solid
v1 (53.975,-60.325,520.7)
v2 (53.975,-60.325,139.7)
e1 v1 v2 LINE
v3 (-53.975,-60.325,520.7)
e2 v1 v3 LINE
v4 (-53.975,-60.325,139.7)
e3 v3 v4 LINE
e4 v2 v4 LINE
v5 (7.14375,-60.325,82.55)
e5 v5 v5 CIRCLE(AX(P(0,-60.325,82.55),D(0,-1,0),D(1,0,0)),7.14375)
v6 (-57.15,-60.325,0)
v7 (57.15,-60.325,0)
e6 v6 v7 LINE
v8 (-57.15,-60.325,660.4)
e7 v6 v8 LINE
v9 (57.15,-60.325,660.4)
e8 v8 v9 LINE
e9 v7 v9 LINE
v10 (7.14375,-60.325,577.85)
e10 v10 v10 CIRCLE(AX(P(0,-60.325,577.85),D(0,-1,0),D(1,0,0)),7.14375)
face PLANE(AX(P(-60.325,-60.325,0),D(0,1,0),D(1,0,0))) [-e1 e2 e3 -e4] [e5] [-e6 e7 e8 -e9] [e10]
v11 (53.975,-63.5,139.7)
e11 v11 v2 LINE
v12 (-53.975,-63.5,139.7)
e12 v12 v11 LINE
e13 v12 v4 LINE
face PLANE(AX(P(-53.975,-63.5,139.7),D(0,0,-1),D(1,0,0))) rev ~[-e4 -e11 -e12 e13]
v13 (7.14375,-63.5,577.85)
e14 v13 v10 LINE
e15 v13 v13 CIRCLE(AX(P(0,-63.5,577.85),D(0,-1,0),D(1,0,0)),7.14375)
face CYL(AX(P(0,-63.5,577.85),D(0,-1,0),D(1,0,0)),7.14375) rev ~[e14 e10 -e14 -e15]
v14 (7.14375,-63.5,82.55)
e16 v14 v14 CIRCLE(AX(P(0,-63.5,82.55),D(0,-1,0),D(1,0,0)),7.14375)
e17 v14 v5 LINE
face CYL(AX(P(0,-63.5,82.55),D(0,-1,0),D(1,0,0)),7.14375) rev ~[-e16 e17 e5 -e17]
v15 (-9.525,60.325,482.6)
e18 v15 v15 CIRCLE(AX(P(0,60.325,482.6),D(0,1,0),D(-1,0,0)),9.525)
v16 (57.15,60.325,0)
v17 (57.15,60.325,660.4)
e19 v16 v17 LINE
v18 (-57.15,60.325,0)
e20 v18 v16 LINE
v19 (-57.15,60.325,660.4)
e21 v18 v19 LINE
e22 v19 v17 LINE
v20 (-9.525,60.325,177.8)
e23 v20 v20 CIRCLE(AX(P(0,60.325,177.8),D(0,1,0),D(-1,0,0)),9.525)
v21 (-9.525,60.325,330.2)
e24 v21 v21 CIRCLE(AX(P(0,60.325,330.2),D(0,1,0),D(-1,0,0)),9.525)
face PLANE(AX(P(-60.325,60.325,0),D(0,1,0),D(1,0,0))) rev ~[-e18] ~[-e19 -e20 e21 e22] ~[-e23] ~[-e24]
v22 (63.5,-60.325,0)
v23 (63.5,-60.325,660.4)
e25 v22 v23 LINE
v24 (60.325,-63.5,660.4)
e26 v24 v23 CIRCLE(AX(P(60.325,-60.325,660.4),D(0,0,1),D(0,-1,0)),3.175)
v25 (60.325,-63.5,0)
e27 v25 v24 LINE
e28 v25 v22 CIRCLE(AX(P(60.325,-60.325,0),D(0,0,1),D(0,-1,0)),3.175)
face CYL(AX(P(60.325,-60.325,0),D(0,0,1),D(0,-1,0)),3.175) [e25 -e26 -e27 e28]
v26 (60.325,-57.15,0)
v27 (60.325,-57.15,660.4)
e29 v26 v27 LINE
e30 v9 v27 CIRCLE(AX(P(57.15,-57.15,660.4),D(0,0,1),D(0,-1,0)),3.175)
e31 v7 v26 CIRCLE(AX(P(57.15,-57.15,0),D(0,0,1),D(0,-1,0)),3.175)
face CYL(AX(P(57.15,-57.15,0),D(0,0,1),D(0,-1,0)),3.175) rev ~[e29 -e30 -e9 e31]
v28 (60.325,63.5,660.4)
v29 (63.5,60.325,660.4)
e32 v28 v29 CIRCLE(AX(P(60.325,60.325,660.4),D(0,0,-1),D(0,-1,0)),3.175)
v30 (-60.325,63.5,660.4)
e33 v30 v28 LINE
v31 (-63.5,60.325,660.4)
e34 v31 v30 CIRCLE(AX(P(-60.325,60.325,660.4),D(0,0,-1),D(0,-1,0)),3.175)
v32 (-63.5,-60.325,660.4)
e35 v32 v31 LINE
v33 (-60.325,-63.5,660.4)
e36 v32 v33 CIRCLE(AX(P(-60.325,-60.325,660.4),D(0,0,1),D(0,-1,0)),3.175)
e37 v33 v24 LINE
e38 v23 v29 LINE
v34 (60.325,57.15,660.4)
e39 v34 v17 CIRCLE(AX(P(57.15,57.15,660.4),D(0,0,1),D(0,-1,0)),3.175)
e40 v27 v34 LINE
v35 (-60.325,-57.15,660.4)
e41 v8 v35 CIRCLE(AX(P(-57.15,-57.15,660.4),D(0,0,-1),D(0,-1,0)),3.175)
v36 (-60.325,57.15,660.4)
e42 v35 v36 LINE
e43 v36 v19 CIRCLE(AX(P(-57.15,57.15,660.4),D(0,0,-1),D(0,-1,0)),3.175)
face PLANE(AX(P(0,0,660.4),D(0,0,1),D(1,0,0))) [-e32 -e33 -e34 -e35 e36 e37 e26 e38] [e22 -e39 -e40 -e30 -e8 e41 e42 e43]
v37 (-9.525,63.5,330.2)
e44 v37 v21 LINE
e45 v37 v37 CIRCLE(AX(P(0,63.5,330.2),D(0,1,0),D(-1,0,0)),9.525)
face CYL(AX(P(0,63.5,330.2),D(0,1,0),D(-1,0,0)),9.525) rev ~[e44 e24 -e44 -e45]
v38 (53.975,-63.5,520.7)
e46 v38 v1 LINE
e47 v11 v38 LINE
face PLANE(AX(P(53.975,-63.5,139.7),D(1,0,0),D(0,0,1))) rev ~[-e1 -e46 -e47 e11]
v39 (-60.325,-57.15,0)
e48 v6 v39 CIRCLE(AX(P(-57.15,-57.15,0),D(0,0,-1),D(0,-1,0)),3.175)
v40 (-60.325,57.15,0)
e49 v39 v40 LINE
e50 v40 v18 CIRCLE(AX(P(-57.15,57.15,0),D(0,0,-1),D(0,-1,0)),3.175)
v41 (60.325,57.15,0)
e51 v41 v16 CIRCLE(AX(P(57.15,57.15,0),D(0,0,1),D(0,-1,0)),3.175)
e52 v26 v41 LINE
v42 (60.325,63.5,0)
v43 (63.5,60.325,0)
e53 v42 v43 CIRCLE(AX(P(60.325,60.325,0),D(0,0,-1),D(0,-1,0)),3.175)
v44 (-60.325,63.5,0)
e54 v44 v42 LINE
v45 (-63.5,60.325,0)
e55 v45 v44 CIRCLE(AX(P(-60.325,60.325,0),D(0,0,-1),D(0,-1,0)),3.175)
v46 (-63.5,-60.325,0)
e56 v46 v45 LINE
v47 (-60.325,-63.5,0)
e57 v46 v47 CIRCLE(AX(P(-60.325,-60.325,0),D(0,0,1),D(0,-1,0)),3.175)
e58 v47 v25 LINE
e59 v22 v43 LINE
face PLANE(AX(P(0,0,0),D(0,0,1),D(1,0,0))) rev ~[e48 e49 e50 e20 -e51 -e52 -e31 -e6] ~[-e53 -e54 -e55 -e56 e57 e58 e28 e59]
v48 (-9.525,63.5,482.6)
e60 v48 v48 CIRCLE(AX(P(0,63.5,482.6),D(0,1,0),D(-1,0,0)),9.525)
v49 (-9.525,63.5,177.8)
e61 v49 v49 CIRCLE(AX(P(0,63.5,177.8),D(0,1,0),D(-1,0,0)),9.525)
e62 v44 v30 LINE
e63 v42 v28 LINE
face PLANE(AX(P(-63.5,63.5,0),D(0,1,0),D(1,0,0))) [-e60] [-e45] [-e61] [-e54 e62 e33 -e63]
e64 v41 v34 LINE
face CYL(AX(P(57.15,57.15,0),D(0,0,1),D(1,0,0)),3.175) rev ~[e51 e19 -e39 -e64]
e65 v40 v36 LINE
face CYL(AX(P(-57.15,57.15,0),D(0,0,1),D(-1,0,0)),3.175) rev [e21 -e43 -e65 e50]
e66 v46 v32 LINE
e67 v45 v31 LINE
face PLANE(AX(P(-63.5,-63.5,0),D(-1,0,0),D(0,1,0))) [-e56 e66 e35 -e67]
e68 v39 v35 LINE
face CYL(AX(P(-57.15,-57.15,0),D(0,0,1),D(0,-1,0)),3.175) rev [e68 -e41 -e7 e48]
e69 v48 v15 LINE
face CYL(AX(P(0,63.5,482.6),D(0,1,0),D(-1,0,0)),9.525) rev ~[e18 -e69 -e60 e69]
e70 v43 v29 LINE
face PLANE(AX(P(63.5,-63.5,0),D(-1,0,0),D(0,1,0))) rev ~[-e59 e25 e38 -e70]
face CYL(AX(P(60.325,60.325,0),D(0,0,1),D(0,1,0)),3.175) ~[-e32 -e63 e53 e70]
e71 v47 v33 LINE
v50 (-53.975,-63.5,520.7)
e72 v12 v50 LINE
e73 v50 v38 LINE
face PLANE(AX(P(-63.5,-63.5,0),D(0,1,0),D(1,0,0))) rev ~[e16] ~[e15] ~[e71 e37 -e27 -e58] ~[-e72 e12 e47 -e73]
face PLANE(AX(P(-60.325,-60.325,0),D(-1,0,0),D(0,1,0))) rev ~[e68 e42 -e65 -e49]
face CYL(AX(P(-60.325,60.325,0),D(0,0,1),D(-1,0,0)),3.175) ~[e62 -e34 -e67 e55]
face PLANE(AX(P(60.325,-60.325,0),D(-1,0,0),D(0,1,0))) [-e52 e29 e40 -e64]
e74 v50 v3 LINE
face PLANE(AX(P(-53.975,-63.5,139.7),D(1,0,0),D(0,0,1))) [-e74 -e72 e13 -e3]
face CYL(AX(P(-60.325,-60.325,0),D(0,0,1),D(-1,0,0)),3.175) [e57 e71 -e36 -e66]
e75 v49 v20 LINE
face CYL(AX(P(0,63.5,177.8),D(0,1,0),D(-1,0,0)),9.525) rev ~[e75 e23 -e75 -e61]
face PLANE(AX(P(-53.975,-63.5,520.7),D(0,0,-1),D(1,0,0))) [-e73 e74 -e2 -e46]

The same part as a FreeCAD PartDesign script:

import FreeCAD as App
import Part
import Sketcher

V = App.Vector
Q = App.Units.Quantity


def edges_at(feature, points):
    """Names of the edges that pass closest to the given points."""
    edges = feature.Shape.Edges
    near = lambda p: min(range(len(edges)), key=lambda i: edges[i].distToShape(Part.Vertex(*p))[0])
    return sorted({f"Edge{near(p) + 1}" for p in points})


def add_polygon(sketch, points):
    """Adds a closed chain of lines whose ends are joined by coincident constraints."""
    first, n = sketch.GeometryCount, len(points)
    for a, b in zip(points, points[1:] + points[:1]):
        sketch.addGeometry(Part.LineSegment(App.Vector(*a, 0), App.Vector(*b, 0)), False)
    for i in range(n):
        sketch.addConstraint(Sketcher.Constraint("Coincident", first + i, 2, first + (i + 1) % n, 1))

doc = App.newDocument("Part")
params = doc.addObject("Spreadsheet::Sheet", "Params")
for row, (alias, value) in enumerate([
    ("sketch1_width", "5 in"),
    ("sketch1_width2", "4.75 in"),
    ("pad1_length", "26 in"),
    ("fillet_radius", "0.125 in"),
    ("fillet2_radius", "0.125 in"),
    ("sketch2_height", "15 in"),
    ("sketch2_width", "4.25 in"),
    ("pocket1_length", "1 in"),
    ("sketch3_diameter", "0.5625 in"),
    ("pocket2_length", "1 in"),
    ("sketch4_diameter", "0.75 in"),
    ("pocket3_length", "1 in"),
], start=1):
    params.set(f"A{row}", alias)
    params.set(f"B{row}", "=" + value)
    params.setAlias(f"B{row}", alias)

body = doc.addObject("PartDesign::Body", "Body")

# Sketch on XY plane
sketch1 = body.newObject("Sketcher::SketchObject", "Sketch")
sketch1.AttachmentSupport = (doc.getObject("XY_Plane"), [""])
sketch1.MapMode = "FlatFace"
add_polygon(sketch1, [(-64, 64), (-64, -64), (64, -64), (64, 64)])  # lines 0-3
add_polygon(sketch1, [(60, -60), (-60, -60), (-60, 60), (60, 60)])  # lines 4-7
sketch1.addConstraint([
    Sketcher.Constraint("Vertical", 0),
    Sketcher.Constraint("Horizontal", 1),
    Sketcher.Constraint("Vertical", 2),
    Sketcher.Constraint("Horizontal", 3),
    Sketcher.Constraint("Horizontal", 4),
    Sketcher.Constraint("Vertical", 5),
    Sketcher.Constraint("Horizontal", 6),
    Sketcher.Constraint("Vertical", 7),
    Sketcher.Constraint("Symmetric", 0, 2, 2, 2, -1, 1),
    Sketcher.Constraint("Symmetric", 4, 2, 6, 2, -1, 1),
    Sketcher.Constraint("Equal", 3, 0),
    Sketcher.Constraint("Equal", 6, 5),
    Sketcher.Constraint("DistanceX", 1, 1, 1, 2, Q("5 in")),
    Sketcher.Constraint("DistanceX", 4, 2, 4, 1, Q("4.75 in")),
])
sketch1.setExpression("Constraints[20]", "Params.sketch1_width")
sketch1.setExpression("Constraints[21]", "Params.sketch1_width2")
pad1 = body.newObject("PartDesign::Pad", "Pad")
pad1.Profile = sketch1
pad1.setExpression("Length", "Params.pad1_length")
doc.recompute()

fillet = body.newObject("PartDesign::Fillet", "Fillet")
fillet.Base = (pad1, edges_at(pad1, [
    (60.325, 60.325, 330.2),
    (63.5, -63.5, 330.2),
    (-63.5, -63.5, 330.2),
    (-63.5, 63.5, 330.2),
    (60.325, -60.325, 330.2),
    (63.5, 63.5, 330.2),
    (-60.325, -60.325, 330.2),
]))
fillet.setExpression("Radius", "Params.fillet_radius")
doc.recompute()

fillet2 = body.newObject("PartDesign::Fillet", "Fillet001")
fillet2.Base = (fillet, edges_at(fillet, [(-60.325, 60.325, 330.2)]))
fillet2.setExpression("Radius", "Params.fillet2_radius")

# Sketch on XZ plane
sketch2 = body.newObject("Sketcher::SketchObject", "Sketch001")
sketch2.AttachmentSupport = (doc.getObject("XZ_Plane"), [""])
sketch2.MapMode = "FlatFace"
sketch2.AttachmentOffset = App.Placement(V(0, 0, 2.5 * 25.4), App.Rotation())
add_polygon(sketch2, [(-54, 521), (-54, 140), (54, 140), (54, 521)])  # lines 0-3
sketch2.addConstraint([
    Sketcher.Constraint("Vertical", 0),
    Sketcher.Constraint("Horizontal", 1),
    Sketcher.Constraint("Vertical", 2),
    Sketcher.Constraint("Horizontal", 3),
    Sketcher.Constraint("DistanceY", 0, 2, 0, 1, Q("15 in")),
    Sketcher.Constraint("DistanceX", 1, 1, 1, 2, Q("4.25 in")),
    Sketcher.Constraint("DistanceY", -1, 1, 0, 2, Q("5.5 in")),
    Sketcher.Constraint("DistanceX", 0, 2, -1, 1, Q("2.125 in")),
])
sketch2.setExpression("Constraints[8]", "Params.sketch2_height")
sketch2.setExpression("Constraints[9]", "Params.sketch2_width")
pocket1 = body.newObject("PartDesign::Pocket", "Pocket")
pocket1.Profile = sketch2
pocket1.setExpression("Length", "Params.pocket1_length")

# Sketch on XZ plane
sketch3 = body.newObject("Sketcher::SketchObject", "Sketch002")
sketch3.AttachmentSupport = (doc.getObject("XZ_Plane"), [""])
sketch3.MapMode = "FlatFace"
sketch3.AttachmentOffset = App.Placement(V(0, 0, 2.5 * 25.4), App.Rotation())
sketch3.addGeometry([
    Part.Circle(V(0, 83, 0), V(0, 0, 1), 7),
    Part.Circle(V(0, 578, 0), V(0, 0, 1), 7),
], False)
sketch3.addConstraint([
    Sketcher.Constraint("Equal", 0, 1),
    Sketcher.Constraint("PointOnObject", 0, 3, -2),
    Sketcher.Constraint("PointOnObject", 1, 3, -2),
    Sketcher.Constraint("Diameter", 0, Q("0.5625 in")),
    Sketcher.Constraint("DistanceY", 0, 3, 1, 3, Q("19.5 in")),
    Sketcher.Constraint("DistanceY", -1, 1, 0, 3, Q("3.25 in")),
])
sketch3.setExpression("Constraints[3]", "Params.sketch3_diameter")
pocket2 = body.newObject("PartDesign::Pocket", "Pocket001")
pocket2.Profile = sketch3
pocket2.setExpression("Length", "Params.pocket2_length")

# Sketch on XZ plane
sketch4 = body.newObject("Sketcher::SketchObject", "Sketch003")
sketch4.AttachmentSupport = (doc.getObject("XZ_Plane"), [""])
sketch4.MapMode = "FlatFace"
sketch4.AttachmentOffset = App.Placement(V(0, 0, -2.5 * 25.4), App.Rotation())
sketch4.addGeometry([
    Part.Circle(V(0, 178, 0), V(0, 0, 1), 10),
    Part.Circle(V(0, 330, 0), V(0, 0, 1), 10),
    Part.Circle(V(0, 483, 0), V(0, 0, 1), 10),
], False)
sketch4.addConstraint([
    Sketcher.Constraint("Equal", 0, 1),
    Sketcher.Constraint("Equal", 1, 2),
    Sketcher.Constraint("PointOnObject", 0, 3, -2),
    Sketcher.Constraint("PointOnObject", 1, 3, -2),
    Sketcher.Constraint("PointOnObject", 2, 3, -2),
    Sketcher.Constraint("Diameter", 0, Q("0.75 in")),
    Sketcher.Constraint("DistanceY", -1, 1, 0, 3, Q("7 in")),
    Sketcher.Constraint("DistanceY", -1, 1, 1, 3, Q("13 in")),
    Sketcher.Constraint("DistanceY", -1, 1, 2, 3, Q("19 in")),
])
sketch4.setExpression("Constraints[5]", "Params.sketch4_diameter")
pocket3 = body.newObject("PartDesign::Pocket", "Pocket002")
pocket3.Profile = sketch4
pocket3.setExpression("Length", "Params.pocket3_length")
pocket3.Reversed = True

doc.recompute()
